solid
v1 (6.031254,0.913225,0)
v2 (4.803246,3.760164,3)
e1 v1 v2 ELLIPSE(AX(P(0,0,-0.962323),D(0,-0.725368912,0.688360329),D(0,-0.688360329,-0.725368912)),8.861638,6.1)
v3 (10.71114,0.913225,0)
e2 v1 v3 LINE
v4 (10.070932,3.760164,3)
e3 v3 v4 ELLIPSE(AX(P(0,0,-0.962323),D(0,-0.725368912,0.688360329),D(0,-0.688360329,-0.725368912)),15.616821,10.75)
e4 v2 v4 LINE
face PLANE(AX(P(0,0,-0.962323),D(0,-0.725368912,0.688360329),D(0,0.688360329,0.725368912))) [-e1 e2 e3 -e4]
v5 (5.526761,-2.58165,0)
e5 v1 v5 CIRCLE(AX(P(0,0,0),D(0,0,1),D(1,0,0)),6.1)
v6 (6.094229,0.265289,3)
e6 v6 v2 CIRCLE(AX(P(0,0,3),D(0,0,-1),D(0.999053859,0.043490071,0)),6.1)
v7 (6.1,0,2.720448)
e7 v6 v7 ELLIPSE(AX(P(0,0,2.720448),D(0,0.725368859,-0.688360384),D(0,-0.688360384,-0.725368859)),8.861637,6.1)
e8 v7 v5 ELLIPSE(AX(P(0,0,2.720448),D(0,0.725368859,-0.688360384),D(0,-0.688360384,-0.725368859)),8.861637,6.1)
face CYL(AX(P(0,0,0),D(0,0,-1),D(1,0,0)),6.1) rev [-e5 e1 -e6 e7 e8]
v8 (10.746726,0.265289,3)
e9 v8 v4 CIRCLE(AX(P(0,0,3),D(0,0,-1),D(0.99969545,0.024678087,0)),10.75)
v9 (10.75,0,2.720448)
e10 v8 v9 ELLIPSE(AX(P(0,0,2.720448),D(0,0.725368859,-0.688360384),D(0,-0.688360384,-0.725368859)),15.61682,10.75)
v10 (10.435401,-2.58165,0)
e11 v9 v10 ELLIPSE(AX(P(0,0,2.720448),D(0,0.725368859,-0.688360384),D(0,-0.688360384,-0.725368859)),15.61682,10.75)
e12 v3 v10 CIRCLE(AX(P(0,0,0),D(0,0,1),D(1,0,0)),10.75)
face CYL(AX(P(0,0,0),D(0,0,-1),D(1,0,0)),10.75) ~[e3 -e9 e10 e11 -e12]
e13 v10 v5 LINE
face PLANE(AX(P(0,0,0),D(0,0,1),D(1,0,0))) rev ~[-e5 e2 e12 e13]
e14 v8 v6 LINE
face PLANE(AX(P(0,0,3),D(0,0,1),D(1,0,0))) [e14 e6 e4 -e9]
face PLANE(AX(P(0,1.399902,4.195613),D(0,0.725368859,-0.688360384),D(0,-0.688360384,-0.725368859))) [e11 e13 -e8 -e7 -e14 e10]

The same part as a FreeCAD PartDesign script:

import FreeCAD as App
import Part
import Sketcher

V = App.Vector

doc = App.newDocument("Part")
body = doc.addObject("PartDesign::Body", "Body")

# Sketch on XY plane
sketch1 = doc.addObject("Sketcher::SketchObject", "Sketch")
body.addObject(sketch1)
sketch1.AttachmentSupport = (doc.XY_Plane, [""])
sketch1.MapMode = "FlatFace"
sketch1.addGeometry([
    Part.Circle(V(0, 0, 0), V(0, 0, 1), 11),
    Part.Circle(V(0, 0, 0), V(0, 0, 1), 6),
], False)
sketch1.addConstraint([
    Sketcher.Constraint("Coincident", 0, 3, -1, 1),
    Sketcher.Constraint("Coincident", 1, 3, -1, 1),
    Sketcher.Constraint("Diameter", 0, 21.5),
    Sketcher.Constraint("Diameter", 1, 12.2),
])
pad1 = doc.addObject("PartDesign::Pad", "Pad")
body.addObject(pad1)
pad1.Profile = sketch1
pad1.Length = 3

# Sketch on YZ plane
sketch2 = doc.addObject("Sketcher::SketchObject", "Sketch001")
body.addObject(sketch2)
sketch2.AttachmentSupport = (doc.YZ_Plane, [""])
sketch2.MapMode = "FlatFace"
sketch2.addGeometry([
    Part.LineSegment(V(4.2, 3.5, 0), V(1.4, 4.2, 0)),
    Part.LineSegment(V(1.4, 4.2, 0), V(-3.5, -1, 0)),
    Part.LineSegment(V(-3.5, -1, 0), V(0, -1, 0)),
    Part.LineSegment(V(0, -1, 0), V(4.2, 3.5, 0)),
], False)
sketch2.addConstraint([
    Sketcher.Constraint("Coincident", 0, 2, 1, 1),
    Sketcher.Constraint("Coincident", 1, 2, 2, 1),
    Sketcher.Constraint("Coincident", 2, 2, 3, 1),
    Sketcher.Constraint("Coincident", 3, 2, 0, 1),
    Sketcher.Constraint("Horizontal", 2),
    Sketcher.Constraint("PointOnObject", 2, 2, -2),
    Sketcher.Constraint("Parallel", 1, 3),
    Sketcher.Constraint("Distance", 3, 6.100828),
    Sketcher.Constraint("DistanceX", 2, 1, 2, 2, 3.494875),
    Sketcher.Constraint("DistanceX", -1, 1, 3, 2, 4.199568),
    Sketcher.Constraint("DistanceY", -1, 1, 3, 2, 3.463028),
    Sketcher.Constraint("Distance", 0, 2.893926),
])
pocket1 = doc.addObject("PartDesign::Pocket", "Pocket")
body.addObject(pocket1)
pocket1.Profile = sketch2
pocket1.Length = 25
pocket1.Reversed = True

doc.recompute()
